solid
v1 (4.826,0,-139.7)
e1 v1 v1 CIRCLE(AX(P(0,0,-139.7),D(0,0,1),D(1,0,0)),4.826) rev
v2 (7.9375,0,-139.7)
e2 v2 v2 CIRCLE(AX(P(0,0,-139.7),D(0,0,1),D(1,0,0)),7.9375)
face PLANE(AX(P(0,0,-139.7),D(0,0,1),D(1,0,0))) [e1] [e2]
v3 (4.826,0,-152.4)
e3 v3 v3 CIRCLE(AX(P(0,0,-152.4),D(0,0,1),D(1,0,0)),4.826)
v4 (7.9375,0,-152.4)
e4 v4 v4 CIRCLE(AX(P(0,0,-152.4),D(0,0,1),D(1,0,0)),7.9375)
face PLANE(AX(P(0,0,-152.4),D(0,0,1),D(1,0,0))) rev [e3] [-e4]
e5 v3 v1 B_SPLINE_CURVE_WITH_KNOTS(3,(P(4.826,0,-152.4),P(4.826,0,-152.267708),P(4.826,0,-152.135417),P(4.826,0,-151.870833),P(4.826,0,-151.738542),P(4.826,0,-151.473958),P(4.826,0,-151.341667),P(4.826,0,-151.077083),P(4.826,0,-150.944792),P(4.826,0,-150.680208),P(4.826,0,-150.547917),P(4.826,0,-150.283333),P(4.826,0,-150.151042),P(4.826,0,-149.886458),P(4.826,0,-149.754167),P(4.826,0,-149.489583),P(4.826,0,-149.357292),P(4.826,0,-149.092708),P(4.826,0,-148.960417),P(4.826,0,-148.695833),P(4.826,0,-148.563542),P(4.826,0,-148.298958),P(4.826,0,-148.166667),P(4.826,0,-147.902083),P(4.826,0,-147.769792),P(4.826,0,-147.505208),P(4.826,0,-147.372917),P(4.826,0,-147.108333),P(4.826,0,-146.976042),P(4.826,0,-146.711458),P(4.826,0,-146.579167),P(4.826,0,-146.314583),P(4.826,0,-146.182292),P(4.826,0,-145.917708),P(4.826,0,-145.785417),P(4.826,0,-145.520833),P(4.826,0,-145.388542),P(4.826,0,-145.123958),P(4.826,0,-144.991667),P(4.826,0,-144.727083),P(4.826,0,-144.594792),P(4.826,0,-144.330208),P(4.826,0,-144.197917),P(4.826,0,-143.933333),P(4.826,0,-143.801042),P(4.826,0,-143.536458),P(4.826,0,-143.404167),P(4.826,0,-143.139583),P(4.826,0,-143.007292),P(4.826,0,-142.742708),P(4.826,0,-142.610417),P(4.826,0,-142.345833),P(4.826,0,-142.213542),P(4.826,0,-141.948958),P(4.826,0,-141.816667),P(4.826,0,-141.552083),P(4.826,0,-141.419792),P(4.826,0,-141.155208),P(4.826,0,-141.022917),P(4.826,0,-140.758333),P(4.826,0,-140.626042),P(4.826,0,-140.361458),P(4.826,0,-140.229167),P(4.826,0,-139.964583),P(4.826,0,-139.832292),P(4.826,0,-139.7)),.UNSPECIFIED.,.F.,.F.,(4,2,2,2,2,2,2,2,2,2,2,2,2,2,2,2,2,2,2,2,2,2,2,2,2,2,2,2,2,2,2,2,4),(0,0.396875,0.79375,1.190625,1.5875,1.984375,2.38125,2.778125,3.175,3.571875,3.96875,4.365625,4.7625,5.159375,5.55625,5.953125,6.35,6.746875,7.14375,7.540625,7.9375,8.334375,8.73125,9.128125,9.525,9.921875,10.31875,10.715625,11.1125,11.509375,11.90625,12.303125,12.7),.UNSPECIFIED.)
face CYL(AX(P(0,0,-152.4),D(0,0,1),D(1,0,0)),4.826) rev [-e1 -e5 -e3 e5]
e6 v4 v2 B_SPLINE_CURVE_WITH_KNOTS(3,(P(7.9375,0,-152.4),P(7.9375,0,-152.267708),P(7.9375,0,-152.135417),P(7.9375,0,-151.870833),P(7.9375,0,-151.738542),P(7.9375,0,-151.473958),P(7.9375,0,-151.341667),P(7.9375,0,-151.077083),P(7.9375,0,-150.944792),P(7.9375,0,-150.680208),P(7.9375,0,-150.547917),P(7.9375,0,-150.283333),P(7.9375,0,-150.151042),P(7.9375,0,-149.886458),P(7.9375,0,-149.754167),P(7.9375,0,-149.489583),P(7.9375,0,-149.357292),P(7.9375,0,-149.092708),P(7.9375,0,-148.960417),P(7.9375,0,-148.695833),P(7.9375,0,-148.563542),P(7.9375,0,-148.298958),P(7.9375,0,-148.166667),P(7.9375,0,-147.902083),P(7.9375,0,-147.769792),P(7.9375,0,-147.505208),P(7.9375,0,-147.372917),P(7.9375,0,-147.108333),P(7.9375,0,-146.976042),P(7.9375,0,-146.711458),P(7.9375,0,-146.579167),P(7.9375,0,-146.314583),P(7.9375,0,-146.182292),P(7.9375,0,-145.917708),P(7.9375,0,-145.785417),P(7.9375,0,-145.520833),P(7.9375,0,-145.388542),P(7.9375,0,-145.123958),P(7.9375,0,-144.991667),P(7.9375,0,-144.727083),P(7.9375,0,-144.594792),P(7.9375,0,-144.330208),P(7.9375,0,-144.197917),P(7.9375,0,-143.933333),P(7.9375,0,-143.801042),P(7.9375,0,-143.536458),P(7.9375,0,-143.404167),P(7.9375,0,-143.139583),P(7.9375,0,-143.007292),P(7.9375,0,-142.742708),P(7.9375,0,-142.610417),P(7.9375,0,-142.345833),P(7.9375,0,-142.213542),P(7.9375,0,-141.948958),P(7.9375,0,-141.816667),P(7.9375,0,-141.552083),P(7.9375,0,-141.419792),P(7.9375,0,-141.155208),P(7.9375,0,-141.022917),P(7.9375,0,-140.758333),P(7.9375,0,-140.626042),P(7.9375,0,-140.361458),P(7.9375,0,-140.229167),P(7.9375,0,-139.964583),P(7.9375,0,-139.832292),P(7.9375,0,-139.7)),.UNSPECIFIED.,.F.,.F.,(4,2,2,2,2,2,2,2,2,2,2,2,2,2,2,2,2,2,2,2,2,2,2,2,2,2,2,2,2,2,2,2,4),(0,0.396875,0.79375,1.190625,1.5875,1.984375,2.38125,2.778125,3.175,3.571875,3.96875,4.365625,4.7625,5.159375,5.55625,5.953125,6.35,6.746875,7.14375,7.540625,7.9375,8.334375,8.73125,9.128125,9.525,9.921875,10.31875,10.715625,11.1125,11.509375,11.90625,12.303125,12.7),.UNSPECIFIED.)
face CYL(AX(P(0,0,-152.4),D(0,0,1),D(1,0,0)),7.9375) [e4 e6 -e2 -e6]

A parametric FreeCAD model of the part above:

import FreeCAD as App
import Part
import Sketcher
Q = App.Units.Quantity

doc = App.newDocument("Part")
params = doc.addObject("Spreadsheet::Sheet", "Params")
for row, (alias, value) in enumerate([
    ("sketch1_diameter", "0.38 in"),
    ("sketch1_diameter2", "0.625 in"),
    ("pad1_length", "6 in"),
    ("pad1_length2", "6 in"),
    ("sketch2_diameter", "0.625 in"),
    ("pocket1_length", "11.5 in"),
], start=1):
    params.set(f"A{row}", alias)
    params.set(f"B{row}", "=" + value)
    params.setAlias(f"B{row}", alias)

body = doc.addObject("PartDesign::Body", "Body")

# Sketch on XY plane
sketch1 = doc.addObject("Sketcher::SketchObject", "Sketch")
body.addObject(sketch1)
sketch1.AttachmentSupport = (doc.XY_Plane, [""])
sketch1.MapMode = "FlatFace"
sketch1.addGeometry([
    Part.Circle(App.Vector(0, 0, 0), App.Vector(0, 0, 1), 7.9),
    Part.Circle(App.Vector(0, 0, 0), App.Vector(0, 0, 1), 4.8),
], False)
sketch1.addConstraint([
    Sketcher.Constraint("Coincident", 0, 3, -1, 1),
    Sketcher.Constraint("Coincident", 1, 3, -1, 1),
    Sketcher.Constraint("Diameter", 1, Q("0.38 in")),
    Sketcher.Constraint("Diameter", 0, Q("0.625 in")),
])
sketch1.setExpression("Constraints[2]", "Params.sketch1_diameter")
sketch1.setExpression("Constraints[3]", "Params.sketch1_diameter2")
pad1 = doc.addObject("PartDesign::Pad", "Pad")
body.addObject(pad1)
pad1.Profile = sketch1
pad1.Type = "TwoLengths"
pad1.setExpression("Length", "Params.pad1_length")
pad1.setExpression("Length2", "Params.pad1_length2")

# Sketch on XY plane
sketch2 = doc.addObject("Sketcher::SketchObject", "Sketch001")
body.addObject(sketch2)
sketch2.AttachmentSupport = (doc.XY_Plane, [""])
sketch2.MapMode = "FlatFace"
sketch2.AttachmentOffset = App.Placement(App.Vector(0, 0, 6 * 25.4), App.Rotation())
sketch2.addGeometry(Part.Circle(App.Vector(0, 0, 0), App.Vector(0, 0, 1), 8), False)
sketch2.addConstraint([
    Sketcher.Constraint("Coincident", 0, 3, -1, 1),
    Sketcher.Constraint("Diameter", 0, Q("0.625 in")),
])
sketch2.setExpression("Constraints[1]", "Params.sketch2_diameter")
pocket1 = doc.addObject("PartDesign::Pocket", "Pocket")
body.addObject(pocket1)
pocket1.Profile = sketch2
pocket1.setExpression("Length", "Params.pocket1_length")

doc.recompute()
